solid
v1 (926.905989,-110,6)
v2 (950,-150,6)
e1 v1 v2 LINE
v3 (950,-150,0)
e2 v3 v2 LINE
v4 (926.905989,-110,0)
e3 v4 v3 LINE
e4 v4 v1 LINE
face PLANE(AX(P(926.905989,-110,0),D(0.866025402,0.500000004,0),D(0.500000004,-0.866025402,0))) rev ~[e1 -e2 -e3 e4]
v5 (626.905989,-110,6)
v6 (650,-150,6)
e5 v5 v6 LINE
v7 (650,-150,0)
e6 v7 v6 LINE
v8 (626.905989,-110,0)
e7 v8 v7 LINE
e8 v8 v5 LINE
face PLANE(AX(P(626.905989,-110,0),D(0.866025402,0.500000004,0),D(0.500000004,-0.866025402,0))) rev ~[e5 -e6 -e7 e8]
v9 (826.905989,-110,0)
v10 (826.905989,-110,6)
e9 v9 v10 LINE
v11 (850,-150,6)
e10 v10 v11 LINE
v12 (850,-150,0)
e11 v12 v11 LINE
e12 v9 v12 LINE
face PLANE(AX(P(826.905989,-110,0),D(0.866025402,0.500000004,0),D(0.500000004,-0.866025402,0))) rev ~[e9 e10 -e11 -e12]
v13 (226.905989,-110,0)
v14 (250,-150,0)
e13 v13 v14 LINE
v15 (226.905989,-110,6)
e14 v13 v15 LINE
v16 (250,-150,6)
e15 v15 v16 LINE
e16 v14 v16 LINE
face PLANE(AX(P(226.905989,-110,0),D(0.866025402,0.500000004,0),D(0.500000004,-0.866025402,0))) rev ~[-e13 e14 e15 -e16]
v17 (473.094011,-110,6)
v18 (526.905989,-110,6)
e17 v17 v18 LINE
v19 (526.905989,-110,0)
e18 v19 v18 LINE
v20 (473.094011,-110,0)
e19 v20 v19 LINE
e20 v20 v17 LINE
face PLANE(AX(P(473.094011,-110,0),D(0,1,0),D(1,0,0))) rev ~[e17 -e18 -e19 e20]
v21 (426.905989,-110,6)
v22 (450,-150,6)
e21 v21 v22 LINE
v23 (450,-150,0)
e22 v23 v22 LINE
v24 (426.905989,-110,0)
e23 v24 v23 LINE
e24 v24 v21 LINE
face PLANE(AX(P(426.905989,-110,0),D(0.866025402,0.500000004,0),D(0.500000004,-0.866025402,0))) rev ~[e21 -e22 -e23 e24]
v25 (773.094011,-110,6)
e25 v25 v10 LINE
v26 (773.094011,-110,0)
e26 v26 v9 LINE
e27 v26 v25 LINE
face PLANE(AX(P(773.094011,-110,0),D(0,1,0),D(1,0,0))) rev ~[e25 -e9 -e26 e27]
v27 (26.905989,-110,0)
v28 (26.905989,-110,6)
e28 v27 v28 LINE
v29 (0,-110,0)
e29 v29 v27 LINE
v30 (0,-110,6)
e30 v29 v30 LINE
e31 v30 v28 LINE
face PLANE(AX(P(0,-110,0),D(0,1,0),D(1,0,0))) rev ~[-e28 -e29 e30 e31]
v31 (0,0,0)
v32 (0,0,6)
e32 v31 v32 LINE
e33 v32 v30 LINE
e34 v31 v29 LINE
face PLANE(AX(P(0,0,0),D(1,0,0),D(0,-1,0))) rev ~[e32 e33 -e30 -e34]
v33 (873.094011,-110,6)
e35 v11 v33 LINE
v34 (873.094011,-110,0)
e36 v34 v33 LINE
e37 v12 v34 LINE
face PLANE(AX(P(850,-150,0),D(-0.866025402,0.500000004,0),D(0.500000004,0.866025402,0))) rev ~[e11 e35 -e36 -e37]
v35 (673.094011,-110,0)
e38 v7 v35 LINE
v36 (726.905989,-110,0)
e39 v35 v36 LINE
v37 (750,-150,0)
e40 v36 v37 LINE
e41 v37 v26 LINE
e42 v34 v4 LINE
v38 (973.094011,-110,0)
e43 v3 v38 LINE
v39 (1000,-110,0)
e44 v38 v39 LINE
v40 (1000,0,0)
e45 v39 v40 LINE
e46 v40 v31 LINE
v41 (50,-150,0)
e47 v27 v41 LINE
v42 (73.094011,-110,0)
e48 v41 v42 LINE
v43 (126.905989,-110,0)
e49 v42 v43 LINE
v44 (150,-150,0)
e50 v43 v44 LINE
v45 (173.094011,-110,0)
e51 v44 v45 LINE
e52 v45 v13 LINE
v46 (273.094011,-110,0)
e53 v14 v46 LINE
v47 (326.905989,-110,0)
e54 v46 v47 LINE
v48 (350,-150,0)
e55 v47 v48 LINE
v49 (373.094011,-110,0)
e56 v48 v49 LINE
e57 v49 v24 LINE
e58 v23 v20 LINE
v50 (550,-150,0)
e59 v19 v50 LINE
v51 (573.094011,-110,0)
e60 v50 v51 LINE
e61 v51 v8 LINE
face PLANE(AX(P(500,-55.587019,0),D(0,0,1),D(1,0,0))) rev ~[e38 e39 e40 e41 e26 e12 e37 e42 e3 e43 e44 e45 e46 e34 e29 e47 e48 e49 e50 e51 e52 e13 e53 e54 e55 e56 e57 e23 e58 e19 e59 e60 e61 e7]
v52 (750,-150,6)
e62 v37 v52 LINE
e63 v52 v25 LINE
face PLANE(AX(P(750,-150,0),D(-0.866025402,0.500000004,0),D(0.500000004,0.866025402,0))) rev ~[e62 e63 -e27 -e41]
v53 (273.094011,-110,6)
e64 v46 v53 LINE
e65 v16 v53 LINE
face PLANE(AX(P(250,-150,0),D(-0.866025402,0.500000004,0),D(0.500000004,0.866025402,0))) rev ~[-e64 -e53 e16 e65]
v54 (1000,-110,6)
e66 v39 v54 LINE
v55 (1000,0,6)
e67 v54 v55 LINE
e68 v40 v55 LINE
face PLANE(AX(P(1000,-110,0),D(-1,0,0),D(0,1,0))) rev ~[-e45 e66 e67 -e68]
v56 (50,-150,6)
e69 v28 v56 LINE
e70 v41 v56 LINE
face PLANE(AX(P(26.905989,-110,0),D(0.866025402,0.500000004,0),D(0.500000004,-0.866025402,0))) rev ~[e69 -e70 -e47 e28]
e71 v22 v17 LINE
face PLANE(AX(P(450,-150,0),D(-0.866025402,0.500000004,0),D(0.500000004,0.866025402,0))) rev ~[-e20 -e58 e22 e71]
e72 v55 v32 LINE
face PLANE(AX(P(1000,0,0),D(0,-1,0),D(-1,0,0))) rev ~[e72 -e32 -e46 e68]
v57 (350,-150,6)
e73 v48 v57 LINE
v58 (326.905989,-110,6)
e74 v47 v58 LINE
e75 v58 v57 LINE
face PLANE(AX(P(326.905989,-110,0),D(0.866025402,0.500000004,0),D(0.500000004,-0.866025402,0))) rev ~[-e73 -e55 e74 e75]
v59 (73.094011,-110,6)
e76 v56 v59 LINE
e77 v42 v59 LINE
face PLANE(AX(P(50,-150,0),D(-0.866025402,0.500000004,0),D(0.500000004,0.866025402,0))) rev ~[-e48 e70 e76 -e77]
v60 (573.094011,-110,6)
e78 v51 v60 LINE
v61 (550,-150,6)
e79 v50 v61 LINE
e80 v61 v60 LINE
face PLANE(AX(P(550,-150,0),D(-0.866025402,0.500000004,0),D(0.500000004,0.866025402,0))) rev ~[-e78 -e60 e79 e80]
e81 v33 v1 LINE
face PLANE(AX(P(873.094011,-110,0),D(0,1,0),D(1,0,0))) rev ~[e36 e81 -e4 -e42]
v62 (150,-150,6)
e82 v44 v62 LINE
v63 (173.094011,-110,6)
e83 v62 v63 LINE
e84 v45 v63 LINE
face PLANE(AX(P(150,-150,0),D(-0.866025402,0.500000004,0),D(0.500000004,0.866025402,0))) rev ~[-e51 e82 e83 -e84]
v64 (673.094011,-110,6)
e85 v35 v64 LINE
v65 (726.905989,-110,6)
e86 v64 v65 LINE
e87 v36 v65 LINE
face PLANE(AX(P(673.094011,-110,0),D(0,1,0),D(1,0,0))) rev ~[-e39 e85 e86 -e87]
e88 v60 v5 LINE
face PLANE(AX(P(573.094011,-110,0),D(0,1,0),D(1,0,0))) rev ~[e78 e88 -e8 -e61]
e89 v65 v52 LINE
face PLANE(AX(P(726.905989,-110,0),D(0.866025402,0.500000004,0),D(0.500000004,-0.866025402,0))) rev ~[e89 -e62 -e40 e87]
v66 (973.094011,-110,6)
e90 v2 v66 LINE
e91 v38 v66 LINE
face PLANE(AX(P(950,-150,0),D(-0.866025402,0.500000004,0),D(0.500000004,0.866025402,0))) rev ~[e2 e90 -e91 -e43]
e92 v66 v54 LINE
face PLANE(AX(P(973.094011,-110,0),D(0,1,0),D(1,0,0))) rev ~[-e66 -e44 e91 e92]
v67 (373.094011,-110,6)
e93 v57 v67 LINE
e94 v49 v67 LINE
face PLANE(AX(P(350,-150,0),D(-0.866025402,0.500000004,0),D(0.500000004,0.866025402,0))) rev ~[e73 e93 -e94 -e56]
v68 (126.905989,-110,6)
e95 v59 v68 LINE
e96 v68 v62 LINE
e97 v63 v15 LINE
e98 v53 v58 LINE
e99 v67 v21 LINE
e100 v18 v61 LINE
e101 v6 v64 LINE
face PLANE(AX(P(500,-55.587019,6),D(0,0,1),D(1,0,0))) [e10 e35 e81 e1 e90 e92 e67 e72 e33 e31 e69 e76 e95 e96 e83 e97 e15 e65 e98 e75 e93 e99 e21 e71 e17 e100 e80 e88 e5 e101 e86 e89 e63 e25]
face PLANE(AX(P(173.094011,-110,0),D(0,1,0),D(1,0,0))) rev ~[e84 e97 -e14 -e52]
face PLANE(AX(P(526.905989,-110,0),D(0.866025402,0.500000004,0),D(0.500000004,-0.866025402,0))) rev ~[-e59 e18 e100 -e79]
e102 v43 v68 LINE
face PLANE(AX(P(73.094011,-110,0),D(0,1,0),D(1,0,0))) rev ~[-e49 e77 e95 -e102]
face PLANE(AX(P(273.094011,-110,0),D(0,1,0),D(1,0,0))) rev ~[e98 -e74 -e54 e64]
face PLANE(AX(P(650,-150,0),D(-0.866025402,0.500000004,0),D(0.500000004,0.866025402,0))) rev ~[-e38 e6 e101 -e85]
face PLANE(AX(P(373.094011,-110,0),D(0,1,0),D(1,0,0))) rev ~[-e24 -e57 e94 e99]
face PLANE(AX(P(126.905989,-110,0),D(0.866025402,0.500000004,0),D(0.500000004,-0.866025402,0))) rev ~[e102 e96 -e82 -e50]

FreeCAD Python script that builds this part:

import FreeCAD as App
import Part
import Sketcher

V = App.Vector
Q = App.Units.Quantity

doc = App.newDocument("Part")
body = doc.addObject("PartDesign::Body", "Body")

# Sketch on XY plane
sketch1 = body.newObject("Sketcher::SketchObject", "Sketch")
sketch1.AttachmentSupport = (doc.getObject("XY_Plane"), [""])
sketch1.MapMode = "FlatFace"
sketch1.addGeometry([
    Part.LineSegment(V(1000, 0, 0), V(0, 0, 0)),  # 0
    Part.LineSegment(V(0, 0, 0), V(0, -110, 0)),  # 1
    Part.LineSegment(V(0, -110, 0), V(26.905989, -110, 0)),  # 2
    Part.LineSegment(V(26.905989, -110, 0), V(50, -150, 0)),  # 3
    Part.LineSegment(V(50, -150, 0), V(73.094011, -110, 0)),  # 4
    Part.LineSegment(V(73.094011, -110, 0), V(126.905989, -110, 0)),  # 5
    Part.LineSegment(V(126.905989, -110, 0), V(150, -150, 0)),  # 6
    Part.LineSegment(V(150, -150, 0), V(173.094011, -110, 0)),  # 7
    Part.LineSegment(V(173.094011, -110, 0), V(226.905989, -110, 0)),  # 8
    Part.LineSegment(V(226.905989, -110, 0), V(250, -150, 0)),  # 9
    Part.LineSegment(V(250, -150, 0), V(273.094011, -110, 0)),  # 10
    Part.LineSegment(V(273.094011, -110, 0), V(326.905989, -110, 0)),  # 11
    Part.LineSegment(V(326.905989, -110, 0), V(350, -150, 0)),  # 12
    Part.LineSegment(V(350, -150, 0), V(373.094011, -110, 0)),  # 13
    Part.LineSegment(V(373.094011, -110, 0), V(426.905989, -110, 0)),  # 14
    Part.LineSegment(V(426.905989, -110, 0), V(450, -150, 0)),  # 15
    Part.LineSegment(V(450, -150, 0), V(473.094011, -110, 0)),  # 16
    Part.LineSegment(V(473.094011, -110, 0), V(526.905989, -110, 0)),  # 17
    Part.LineSegment(V(526.905989, -110, 0), V(550, -150, 0)),  # 18
    Part.LineSegment(V(550, -150, 0), V(573.094011, -110, 0)),  # 19
    Part.LineSegment(V(573.094011, -110, 0), V(626.905989, -110, 0)),  # 20
    Part.LineSegment(V(626.905989, -110, 0), V(650, -150, 0)),  # 21
    Part.LineSegment(V(650, -150, 0), V(673.094011, -110, 0)),  # 22
    Part.LineSegment(V(673.094011, -110, 0), V(726.905989, -110, 0)),  # 23
    Part.LineSegment(V(726.905989, -110, 0), V(750, -150, 0)),  # 24
    Part.LineSegment(V(750, -150, 0), V(773.094011, -110, 0)),  # 25
    Part.LineSegment(V(773.094011, -110, 0), V(826.905989, -110, 0)),  # 26
    Part.LineSegment(V(826.905989, -110, 0), V(850, -150, 0)),  # 27
    Part.LineSegment(V(850, -150, 0), V(873.094011, -110, 0)),  # 28
    Part.LineSegment(V(873.094011, -110, 0), V(926.905989, -110, 0)),  # 29
    Part.LineSegment(V(926.905989, -110, 0), V(950, -150, 0)),  # 30
    Part.LineSegment(V(950, -150, 0), V(973.094011, -110, 0)),  # 31
    Part.LineSegment(V(973.094011, -110, 0), V(1000, -110, 0)),  # 32
    Part.LineSegment(V(1000, -110, 0), V(1000, 0, 0)),  # 33
], False)
sketch1.addConstraint([
    Sketcher.Constraint("Coincident", 0, 2, 1, 1),
    Sketcher.Constraint("Coincident", 1, 2, 2, 1),
    Sketcher.Constraint("Coincident", 2, 2, 3, 1),
    Sketcher.Constraint("Coincident", 3, 2, 4, 1),
    Sketcher.Constraint("Coincident", 4, 2, 5, 1),
    Sketcher.Constraint("Coincident", 5, 2, 6, 1),
    Sketcher.Constraint("Coincident", 6, 2, 7, 1),
    Sketcher.Constraint("Coincident", 7, 2, 8, 1),
    Sketcher.Constraint("Coincident", 8, 2, 9, 1),
    Sketcher.Constraint("Coincident", 9, 2, 10, 1),
    Sketcher.Constraint("Coincident", 10, 2, 11, 1),
    Sketcher.Constraint("Coincident", 11, 2, 12, 1),
    Sketcher.Constraint("Coincident", 12, 2, 13, 1),
    Sketcher.Constraint("Coincident", 13, 2, 14, 1),
    Sketcher.Constraint("Coincident", 14, 2, 15, 1),
    Sketcher.Constraint("Coincident", 15, 2, 16, 1),
    Sketcher.Constraint("Coincident", 16, 2, 17, 1),
    Sketcher.Constraint("Coincident", 17, 2, 18, 1),
    Sketcher.Constraint("Coincident", 18, 2, 19, 1),
    Sketcher.Constraint("Coincident", 19, 2, 20, 1),
    Sketcher.Constraint("Coincident", 20, 2, 21, 1),
    Sketcher.Constraint("Coincident", 21, 2, 22, 1),
    Sketcher.Constraint("Coincident", 22, 2, 23, 1),
    Sketcher.Constraint("Coincident", 23, 2, 24, 1),
    Sketcher.Constraint("Coincident", 24, 2, 25, 1),
    Sketcher.Constraint("Coincident", 25, 2, 26, 1),
    Sketcher.Constraint("Coincident", 26, 2, 27, 1),
    Sketcher.Constraint("Coincident", 27, 2, 28, 1),
    Sketcher.Constraint("Coincident", 28, 2, 29, 1),
    Sketcher.Constraint("Coincident", 29, 2, 30, 1),
    Sketcher.Constraint("Coincident", 30, 2, 31, 1),
    Sketcher.Constraint("Coincident", 31, 2, 32, 1),
    Sketcher.Constraint("Coincident", 32, 2, 33, 1),
    Sketcher.Constraint("Coincident", 33, 2, 0, 1),
    Sketcher.Constraint("Horizontal", 0),
    Sketcher.Constraint("Vertical", 1),
    Sketcher.Constraint("Horizontal", 2),
    Sketcher.Constraint("Horizontal", 5),
    Sketcher.Constraint("Horizontal", 8),
    Sketcher.Constraint("Horizontal", 11),
    Sketcher.Constraint("Horizontal", 14),
    Sketcher.Constraint("Horizontal", 17),
    Sketcher.Constraint("Horizontal", 20),
    Sketcher.Constraint("Horizontal", 23),
    Sketcher.Constraint("Horizontal", 26),
    Sketcher.Constraint("Horizontal", 29),
    Sketcher.Constraint("Horizontal", 32),
    Sketcher.Constraint("Vertical", 33),
    Sketcher.Constraint("Coincident", 0, 2, -1, 1),
    Sketcher.Constraint("Parallel", 3, 6),
    Sketcher.Constraint("Parallel", 4, 7),
    Sketcher.Constraint("Parallel", 6, 9),
    Sketcher.Constraint("Parallel", 7, 10),
    Sketcher.Constraint("Parallel", 9, 12),
    Sketcher.Constraint("Parallel", 10, 13),
    Sketcher.Constraint("Parallel", 12, 15),
    Sketcher.Constraint("Parallel", 13, 16),
    Sketcher.Constraint("Parallel", 15, 18),
    Sketcher.Constraint("Parallel", 16, 19),
    Sketcher.Constraint("Parallel", 18, 21),
    Sketcher.Constraint("Parallel", 19, 22),
    Sketcher.Constraint("Parallel", 21, 24),
    Sketcher.Constraint("Parallel", 22, 25),
    Sketcher.Constraint("Parallel", 24, 27),
    Sketcher.Constraint("Parallel", 25, 28),
    Sketcher.Constraint("Parallel", 27, 30),
    Sketcher.Constraint("Parallel", 28, 31),
    Sketcher.Constraint("Horizontal", 2, 2, 4, 2),
    Sketcher.Constraint("Horizontal", 3, 2, 6, 2),
    Sketcher.Constraint("Horizontal", 5, 2, 7, 2),
    Sketcher.Constraint("Horizontal", 6, 2, 9, 2),
    Sketcher.Constraint("Horizontal", 8, 2, 10, 2),
    Sketcher.Constraint("Horizontal", 9, 2, 12, 2),
    Sketcher.Constraint("Horizontal", 11, 2, 13, 2),
    Sketcher.Constraint("Horizontal", 12, 2, 15, 2),
    Sketcher.Constraint("Horizontal", 14, 2, 16, 2),
    Sketcher.Constraint("Horizontal", 15, 2, 18, 2),
    Sketcher.Constraint("Horizontal", 17, 2, 19, 2),
    Sketcher.Constraint("Horizontal", 18, 2, 21, 2),
    Sketcher.Constraint("Horizontal", 20, 2, 22, 2),
    Sketcher.Constraint("Horizontal", 21, 2, 24, 2),
    Sketcher.Constraint("Horizontal", 23, 2, 25, 2),
    Sketcher.Constraint("Horizontal", 24, 2, 27, 2),
    Sketcher.Constraint("Horizontal", 26, 2, 28, 2),
    Sketcher.Constraint("Horizontal", 27, 2, 30, 2),
    Sketcher.Constraint("Horizontal", 29, 2, 31, 2),
    Sketcher.Constraint("Equal", 5, 8),
    Sketcher.Constraint("Equal", 8, 11),
    Sketcher.Constraint("Equal", 11, 14),
    Sketcher.Constraint("Equal", 14, 17),
    Sketcher.Constraint("Equal", 17, 20),
    Sketcher.Constraint("Equal", 20, 23),
    Sketcher.Constraint("Equal", 23, 26),
    Sketcher.Constraint("Equal", 26, 29),
    Sketcher.Constraint("Equal", 2, 32),
    Sketcher.Constraint("Equal", 3, 4),
    Sketcher.Constraint("DistanceX", 0, 2, 0, 1, Q("1000 mm")),
    Sketcher.Constraint("DistanceY", 1, 2, 1, 1, Q("110 mm")),
    Sketcher.Constraint("Angle", 3, Q("-60 deg")),
    Sketcher.Constraint("DistanceX", -1, 1, 3, 2, Q("50 mm")),
    Sketcher.Constraint("DistanceY", 3, 2, -1, 1, Q("150 mm")),
])
pad1 = body.newObject("PartDesign::Pad", "Pad")
pad1.Profile = sketch1
pad1.Length = 6

doc.recompute()
